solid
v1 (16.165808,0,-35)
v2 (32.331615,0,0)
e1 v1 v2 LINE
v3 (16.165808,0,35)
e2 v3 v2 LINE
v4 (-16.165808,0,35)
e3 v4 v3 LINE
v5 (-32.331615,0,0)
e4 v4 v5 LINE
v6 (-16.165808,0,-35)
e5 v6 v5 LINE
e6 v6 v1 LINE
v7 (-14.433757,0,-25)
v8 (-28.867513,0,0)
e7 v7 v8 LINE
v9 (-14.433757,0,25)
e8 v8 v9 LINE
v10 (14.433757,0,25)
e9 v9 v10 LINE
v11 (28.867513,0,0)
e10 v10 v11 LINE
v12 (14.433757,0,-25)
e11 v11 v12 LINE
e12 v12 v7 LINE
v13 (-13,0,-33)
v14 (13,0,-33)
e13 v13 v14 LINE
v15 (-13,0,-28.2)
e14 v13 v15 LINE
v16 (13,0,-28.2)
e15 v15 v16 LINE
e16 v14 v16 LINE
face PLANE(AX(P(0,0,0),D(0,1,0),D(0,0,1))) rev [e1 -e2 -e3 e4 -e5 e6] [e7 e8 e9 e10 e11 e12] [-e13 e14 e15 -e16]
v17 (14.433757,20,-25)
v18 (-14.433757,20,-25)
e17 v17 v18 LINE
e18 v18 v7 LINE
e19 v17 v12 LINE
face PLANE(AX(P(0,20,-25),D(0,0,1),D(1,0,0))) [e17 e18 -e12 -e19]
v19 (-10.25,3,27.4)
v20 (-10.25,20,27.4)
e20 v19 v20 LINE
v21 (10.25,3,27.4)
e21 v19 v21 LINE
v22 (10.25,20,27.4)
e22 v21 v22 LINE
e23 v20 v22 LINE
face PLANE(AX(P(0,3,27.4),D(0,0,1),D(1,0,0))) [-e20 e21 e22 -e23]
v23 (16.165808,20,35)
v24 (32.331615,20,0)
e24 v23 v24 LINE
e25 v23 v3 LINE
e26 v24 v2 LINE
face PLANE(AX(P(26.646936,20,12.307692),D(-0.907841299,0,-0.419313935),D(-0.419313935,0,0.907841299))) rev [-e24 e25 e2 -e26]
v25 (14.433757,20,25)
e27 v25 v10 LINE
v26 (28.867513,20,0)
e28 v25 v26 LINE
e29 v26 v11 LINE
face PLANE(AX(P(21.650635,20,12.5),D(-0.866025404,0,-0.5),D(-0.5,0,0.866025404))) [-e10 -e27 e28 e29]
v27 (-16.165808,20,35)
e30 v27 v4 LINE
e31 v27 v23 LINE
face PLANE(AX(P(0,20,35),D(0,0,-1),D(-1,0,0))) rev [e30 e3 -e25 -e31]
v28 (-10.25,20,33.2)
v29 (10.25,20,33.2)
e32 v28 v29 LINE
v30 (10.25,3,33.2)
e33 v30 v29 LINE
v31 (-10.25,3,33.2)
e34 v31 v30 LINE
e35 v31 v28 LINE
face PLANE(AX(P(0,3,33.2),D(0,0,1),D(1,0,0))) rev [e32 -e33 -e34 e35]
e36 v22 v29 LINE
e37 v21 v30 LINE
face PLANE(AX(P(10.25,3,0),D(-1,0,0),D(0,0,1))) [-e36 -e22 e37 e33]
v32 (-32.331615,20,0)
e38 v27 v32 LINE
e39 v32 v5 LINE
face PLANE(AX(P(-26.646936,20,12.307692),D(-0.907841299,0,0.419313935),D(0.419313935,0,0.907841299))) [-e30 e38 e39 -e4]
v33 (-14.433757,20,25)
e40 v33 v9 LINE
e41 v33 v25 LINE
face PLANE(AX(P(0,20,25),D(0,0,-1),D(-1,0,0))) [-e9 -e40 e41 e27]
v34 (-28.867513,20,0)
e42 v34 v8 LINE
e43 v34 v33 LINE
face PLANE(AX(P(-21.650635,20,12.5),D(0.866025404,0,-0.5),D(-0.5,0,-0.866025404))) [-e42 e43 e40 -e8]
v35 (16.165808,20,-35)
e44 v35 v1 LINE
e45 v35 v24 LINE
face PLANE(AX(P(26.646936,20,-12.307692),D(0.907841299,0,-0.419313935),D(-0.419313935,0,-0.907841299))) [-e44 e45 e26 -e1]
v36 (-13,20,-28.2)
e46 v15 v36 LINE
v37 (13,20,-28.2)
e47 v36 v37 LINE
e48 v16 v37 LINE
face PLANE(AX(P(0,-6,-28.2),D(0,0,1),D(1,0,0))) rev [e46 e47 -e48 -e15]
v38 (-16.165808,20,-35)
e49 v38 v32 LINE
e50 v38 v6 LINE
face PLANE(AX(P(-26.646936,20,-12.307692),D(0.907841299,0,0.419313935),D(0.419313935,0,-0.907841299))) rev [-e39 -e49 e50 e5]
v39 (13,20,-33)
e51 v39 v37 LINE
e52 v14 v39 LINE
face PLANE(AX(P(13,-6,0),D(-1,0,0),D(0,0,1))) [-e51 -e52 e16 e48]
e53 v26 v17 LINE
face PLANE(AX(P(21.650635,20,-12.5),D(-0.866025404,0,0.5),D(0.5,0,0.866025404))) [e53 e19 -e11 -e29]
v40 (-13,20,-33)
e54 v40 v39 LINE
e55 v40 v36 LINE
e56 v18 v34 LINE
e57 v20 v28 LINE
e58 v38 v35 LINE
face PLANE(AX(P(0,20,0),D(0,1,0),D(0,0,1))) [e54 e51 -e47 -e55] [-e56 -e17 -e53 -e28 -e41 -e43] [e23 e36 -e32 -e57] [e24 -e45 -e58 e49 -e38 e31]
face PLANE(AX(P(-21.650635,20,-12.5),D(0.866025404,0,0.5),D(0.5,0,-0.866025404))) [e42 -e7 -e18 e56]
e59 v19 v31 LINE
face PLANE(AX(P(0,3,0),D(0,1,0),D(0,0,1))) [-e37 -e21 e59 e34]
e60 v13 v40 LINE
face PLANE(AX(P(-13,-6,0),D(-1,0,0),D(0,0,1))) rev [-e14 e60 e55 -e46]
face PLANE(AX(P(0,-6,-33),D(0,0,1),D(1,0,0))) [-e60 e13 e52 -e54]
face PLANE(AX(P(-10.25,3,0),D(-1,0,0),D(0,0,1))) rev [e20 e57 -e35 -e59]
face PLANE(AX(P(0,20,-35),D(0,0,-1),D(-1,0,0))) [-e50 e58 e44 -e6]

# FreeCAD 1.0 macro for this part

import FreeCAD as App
import Part
import Sketcher
from FreeCAD import Vector
Q = App.Units.Quantity


def add_polygon(sketch, points):
    """Adds a closed chain of lines whose ends are joined by coincident constraints."""
    first, n = sketch.GeometryCount, len(points)
    for a, b in zip(points, points[1:] + points[:1]):
        sketch.addGeometry(Part.LineSegment(App.Vector(*a, 0), App.Vector(*b, 0)), False)
    for i in range(n):
        sketch.addConstraint(Sketcher.Constraint("Coincident", first + i, 2, first + (i + 1) % n, 1))

doc = App.newDocument("Part")
params = doc.addObject("Spreadsheet::Sheet", "Params")
for row, (alias, value) in enumerate([
    ("pad1_length", "20 mm"),
    ("sketch2_width", "20.5 mm"),
    ("sketch2_height", "5.8 mm"),
    ("pocket1_length", "17 mm"),
    ("sketch3_width", "26 mm"),
    ("sketch3_height", "4.8 mm"),
    ("pocket2_length", "26 mm"),
], start=1):
    params.set(f"A{row}", alias)
    params.set(f"B{row}", "=" + value)
    params.setAlias(f"B{row}", alias)

body = doc.addObject("PartDesign::Body", "Body")

sketch1 = body.newObject("Sketcher::SketchObject", "Sketch")
sketch1.AttachmentSupport = (doc.getObject("XZ_Plane"), [""])
sketch1.MapMode = "FlatFace"
add_polygon(sketch1, [(-16.165808, 35), (16.165808, 35), (32.331615, 0), (16.165808, -35), (-16.165808, -35), (-32.331615, 0)])
add_polygon(sketch1, [(28.867513, 0), (14.433757, 25), (-14.433757, 25), (-28.867513, 0), (-14.433757, -25), (14.433757, -25)])
sketch1.addConstraint([
    Sketcher.Constraint("Horizontal", 0),
    Sketcher.Constraint("Horizontal", 3),
    Sketcher.Constraint("Horizontal", 7),
    Sketcher.Constraint("Horizontal", 10),
    Sketcher.Constraint("Symmetric", 0, 2, 3, 2, -1, 1),
    Sketcher.Constraint("Symmetric", 1, 2, 4, 2, -1, 1),
    Sketcher.Constraint("Symmetric", 6, 2, 9, 2, -1, 1),
    Sketcher.Constraint("Symmetric", 8, 2, 11, 2, -1, 1),
    Sketcher.Constraint("PointOnObject", 1, 2, -1),
    Sketcher.Constraint("PointOnObject", 8, 2, -1),
    Sketcher.Constraint("Parallel", 2, 5),
    Sketcher.Constraint("Parallel", 8, 11),
    Sketcher.Constraint("Vertical", 0, 2, 2, 2),
    Sketcher.Constraint("Vertical", 7, 2, 9, 2),
    Sketcher.Constraint("Angle", 6, Q("120 deg")),
    Sketcher.Constraint("DistanceY", -1, 1, 0, 2, Q("35 mm")),
    Sketcher.Constraint("DistanceY", -1, 1, 6, 2, Q("25 mm")),
    Sketcher.Constraint("DistanceX", 4, 2, 8, 2, Q("3.464102 mm")),
    Sketcher.Constraint("DistanceX", 0, 1, 0, 2, Q("32.331615 mm")),
    Sketcher.Constraint("DistanceX", 7, 2, 7, 1, Q("28.867513 mm")),
])
pad1 = body.newObject("PartDesign::Pad", "Pad")
pad1.Profile = sketch1
pad1.setExpression("Length", "Params.pad1_length")
pad1.Reversed = True

sketch2 = body.newObject("Sketcher::SketchObject", "Sketch001")
sketch2.AttachmentSupport = (doc.getObject("XZ_Plane"), [""])
sketch2.MapMode = "FlatFace"
sketch2.AttachmentOffset = App.Placement(Vector(0, 0, -20), App.Rotation())
add_polygon(sketch2, [(-10.25, 27.4), (-10.25, 33.2), (10.25, 33.2), (10.25, 27.4)])
sketch2.addConstraint([
    Sketcher.Constraint("Vertical", 0),
    Sketcher.Constraint("Horizontal", 1),
    Sketcher.Constraint("Vertical", 2),
    Sketcher.Constraint("Horizontal", 3),
    Sketcher.Constraint("DistanceX", 1, 1, 1, 2, Q("20.5 mm")),
    Sketcher.Constraint("DistanceY", 0, 1, 0, 2, Q("5.8 mm")),
    Sketcher.Constraint("DistanceY", -1, 1, 0, 2, Q("33.2 mm")),
    Sketcher.Constraint("DistanceX", 0, 2, -1, 1, Q("10.25 mm")),
])
sketch2.setExpression("Constraints[8]", "Params.sketch2_width")
sketch2.setExpression("Constraints[9]", "Params.sketch2_height")
pocket1 = body.newObject("PartDesign::Pocket", "Pocket")
pocket1.Profile = sketch2
pocket1.setExpression("Length", "Params.pocket1_length")
pocket1.Reversed = True

sketch3 = body.newObject("Sketcher::SketchObject", "Sketch002")
sketch3.AttachmentSupport = (doc.getObject("XZ_Plane"), [""])
sketch3.MapMode = "FlatFace"
sketch3.AttachmentOffset = App.Placement(Vector(0, 0, -20), App.Rotation())
add_polygon(sketch3, [(-13, -33), (-13, -28.2), (13, -28.2), (13, -33)])
sketch3.addConstraint([
    Sketcher.Constraint("Vertical", 0),
    Sketcher.Constraint("Horizontal", 1),
    Sketcher.Constraint("Vertical", 2),
    Sketcher.Constraint("Horizontal", 3),
    Sketcher.Constraint("DistanceX", 1, 1, 1, 2, Q("26 mm")),
    Sketcher.Constraint("DistanceY", 0, 1, 0, 2, Q("4.8 mm")),
    Sketcher.Constraint("DistanceX", 0, 2, -1, 1, Q("13 mm")),
    Sketcher.Constraint("DistanceY", 2, 2, -1, 1, Q("33 mm")),
])
sketch3.setExpression("Constraints[8]", "Params.sketch3_width")
sketch3.setExpression("Constraints[9]", "Params.sketch3_height")
pocket2 = body.newObject("PartDesign::Pocket", "Pocket001")
pocket2.Profile = sketch3
pocket2.setExpression("Length", "Params.pocket2_length")
pocket2.Reversed = True

doc.recompute()
